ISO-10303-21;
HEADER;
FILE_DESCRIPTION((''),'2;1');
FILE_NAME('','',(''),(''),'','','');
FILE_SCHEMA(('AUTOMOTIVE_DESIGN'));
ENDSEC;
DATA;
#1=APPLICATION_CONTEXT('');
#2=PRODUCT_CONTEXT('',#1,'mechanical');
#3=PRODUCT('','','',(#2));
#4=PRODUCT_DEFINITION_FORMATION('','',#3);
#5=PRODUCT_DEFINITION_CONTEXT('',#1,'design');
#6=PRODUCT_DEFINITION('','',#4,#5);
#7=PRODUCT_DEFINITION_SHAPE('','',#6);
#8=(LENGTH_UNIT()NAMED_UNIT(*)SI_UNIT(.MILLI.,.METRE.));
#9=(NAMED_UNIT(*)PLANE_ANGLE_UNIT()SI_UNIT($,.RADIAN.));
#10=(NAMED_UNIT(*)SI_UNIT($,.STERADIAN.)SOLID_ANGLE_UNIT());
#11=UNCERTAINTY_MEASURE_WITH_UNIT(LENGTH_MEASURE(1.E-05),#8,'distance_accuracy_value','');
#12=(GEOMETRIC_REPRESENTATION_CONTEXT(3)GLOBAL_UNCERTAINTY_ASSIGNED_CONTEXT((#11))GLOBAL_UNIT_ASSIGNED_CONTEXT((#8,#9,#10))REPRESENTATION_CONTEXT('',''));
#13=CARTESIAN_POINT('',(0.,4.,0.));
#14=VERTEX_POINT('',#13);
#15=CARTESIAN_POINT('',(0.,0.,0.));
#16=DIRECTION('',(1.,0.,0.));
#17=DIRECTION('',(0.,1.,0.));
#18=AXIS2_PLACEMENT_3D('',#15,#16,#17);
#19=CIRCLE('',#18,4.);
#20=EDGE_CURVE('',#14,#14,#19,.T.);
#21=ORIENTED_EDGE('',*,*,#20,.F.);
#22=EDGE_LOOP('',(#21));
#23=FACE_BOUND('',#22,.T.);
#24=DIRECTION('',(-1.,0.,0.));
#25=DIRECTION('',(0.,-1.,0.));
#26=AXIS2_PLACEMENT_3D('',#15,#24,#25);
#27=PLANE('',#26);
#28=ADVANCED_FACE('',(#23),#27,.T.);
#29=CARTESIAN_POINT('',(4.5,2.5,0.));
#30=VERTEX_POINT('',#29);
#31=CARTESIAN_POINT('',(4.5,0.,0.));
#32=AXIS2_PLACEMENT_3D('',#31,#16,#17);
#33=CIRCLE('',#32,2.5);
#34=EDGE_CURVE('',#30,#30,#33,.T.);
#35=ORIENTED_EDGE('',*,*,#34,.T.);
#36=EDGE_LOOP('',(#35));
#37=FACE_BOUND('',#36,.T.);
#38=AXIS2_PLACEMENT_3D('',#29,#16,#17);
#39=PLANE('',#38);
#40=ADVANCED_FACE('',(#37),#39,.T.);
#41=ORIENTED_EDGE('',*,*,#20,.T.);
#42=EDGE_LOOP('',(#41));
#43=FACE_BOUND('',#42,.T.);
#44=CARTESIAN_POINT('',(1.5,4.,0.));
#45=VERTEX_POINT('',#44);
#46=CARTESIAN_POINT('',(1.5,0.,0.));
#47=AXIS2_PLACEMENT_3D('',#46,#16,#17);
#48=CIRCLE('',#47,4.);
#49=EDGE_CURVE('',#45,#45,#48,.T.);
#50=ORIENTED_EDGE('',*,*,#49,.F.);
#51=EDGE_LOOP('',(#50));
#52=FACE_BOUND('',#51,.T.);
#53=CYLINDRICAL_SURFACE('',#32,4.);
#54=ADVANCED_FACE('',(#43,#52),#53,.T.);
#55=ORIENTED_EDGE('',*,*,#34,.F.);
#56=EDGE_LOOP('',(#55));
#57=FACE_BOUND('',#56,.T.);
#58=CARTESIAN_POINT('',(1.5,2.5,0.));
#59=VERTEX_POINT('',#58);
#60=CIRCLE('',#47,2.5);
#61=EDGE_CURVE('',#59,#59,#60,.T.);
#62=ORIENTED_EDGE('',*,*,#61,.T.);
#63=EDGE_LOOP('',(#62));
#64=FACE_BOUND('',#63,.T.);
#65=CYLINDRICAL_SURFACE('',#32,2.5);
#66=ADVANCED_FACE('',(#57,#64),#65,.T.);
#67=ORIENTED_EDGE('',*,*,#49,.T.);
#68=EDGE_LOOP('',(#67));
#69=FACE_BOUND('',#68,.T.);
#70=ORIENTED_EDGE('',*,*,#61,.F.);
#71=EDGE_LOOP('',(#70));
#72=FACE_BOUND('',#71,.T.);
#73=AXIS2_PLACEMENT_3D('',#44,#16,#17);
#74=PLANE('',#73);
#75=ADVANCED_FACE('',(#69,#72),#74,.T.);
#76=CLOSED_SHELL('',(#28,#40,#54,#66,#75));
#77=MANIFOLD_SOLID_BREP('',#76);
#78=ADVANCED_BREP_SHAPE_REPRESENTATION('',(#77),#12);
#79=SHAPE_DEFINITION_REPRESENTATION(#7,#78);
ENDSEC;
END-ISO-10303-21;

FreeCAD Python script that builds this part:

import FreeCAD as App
import Part
import Sketcher
from FreeCAD import Vector


def add_polygon(sketch, points):
    """Adds a closed chain of lines whose ends are joined by coincident constraints."""
    first, n = sketch.GeometryCount, len(points)
    for a, b in zip(points, points[1:] + points[:1]):
        sketch.addGeometry(Part.LineSegment(App.Vector(*a, 0), App.Vector(*b, 0)), False)
    for i in range(n):
        sketch.addConstraint(Sketcher.Constraint("Coincident", first + i, 2, first + (i + 1) % n, 1))

doc = App.newDocument("Part")
body = doc.addObject("PartDesign::Body", "Body")

# Sketch on XY plane
sketch1 = body.newObject("Sketcher::SketchObject", "Sketch")
sketch1.AttachmentSupport = (doc.getObject("XY_Plane"), [""])
sketch1.MapMode = "FlatFace"
add_polygon(sketch1, [(0, 4), (0, 0), (4.5, 0), (4.5, 2.5), (1.5, 2.5), (1.5, 4)])  # lines 0-5
sketch1.addConstraint([
    Sketcher.Constraint("Vertical", 0),
    Sketcher.Constraint("Horizontal", 1),
    Sketcher.Constraint("Vertical", 2),
    Sketcher.Constraint("Horizontal", 3),
    Sketcher.Constraint("Vertical", 4),
    Sketcher.Constraint("Horizontal", 5),
    Sketcher.Constraint("Coincident", 0, 2, -1, 1),
    Sketcher.Constraint("Equal", 5, 4),
    Sketcher.Constraint("DistanceX", 3, 2, 3, 1, 3.0),
    Sketcher.Constraint("DistanceY", 0, 2, 0, 1, 4.0),
    Sketcher.Constraint("DistanceX", 1, 1, 1, 2, 4.5),
])
revolution = body.newObject("PartDesign::Revolution", "Revolution")
revolution.Profile = sketch1
revolution.ReferenceAxis = (sketch1, ["H_Axis"])
revolution.Angle = 360

doc.recompute()
